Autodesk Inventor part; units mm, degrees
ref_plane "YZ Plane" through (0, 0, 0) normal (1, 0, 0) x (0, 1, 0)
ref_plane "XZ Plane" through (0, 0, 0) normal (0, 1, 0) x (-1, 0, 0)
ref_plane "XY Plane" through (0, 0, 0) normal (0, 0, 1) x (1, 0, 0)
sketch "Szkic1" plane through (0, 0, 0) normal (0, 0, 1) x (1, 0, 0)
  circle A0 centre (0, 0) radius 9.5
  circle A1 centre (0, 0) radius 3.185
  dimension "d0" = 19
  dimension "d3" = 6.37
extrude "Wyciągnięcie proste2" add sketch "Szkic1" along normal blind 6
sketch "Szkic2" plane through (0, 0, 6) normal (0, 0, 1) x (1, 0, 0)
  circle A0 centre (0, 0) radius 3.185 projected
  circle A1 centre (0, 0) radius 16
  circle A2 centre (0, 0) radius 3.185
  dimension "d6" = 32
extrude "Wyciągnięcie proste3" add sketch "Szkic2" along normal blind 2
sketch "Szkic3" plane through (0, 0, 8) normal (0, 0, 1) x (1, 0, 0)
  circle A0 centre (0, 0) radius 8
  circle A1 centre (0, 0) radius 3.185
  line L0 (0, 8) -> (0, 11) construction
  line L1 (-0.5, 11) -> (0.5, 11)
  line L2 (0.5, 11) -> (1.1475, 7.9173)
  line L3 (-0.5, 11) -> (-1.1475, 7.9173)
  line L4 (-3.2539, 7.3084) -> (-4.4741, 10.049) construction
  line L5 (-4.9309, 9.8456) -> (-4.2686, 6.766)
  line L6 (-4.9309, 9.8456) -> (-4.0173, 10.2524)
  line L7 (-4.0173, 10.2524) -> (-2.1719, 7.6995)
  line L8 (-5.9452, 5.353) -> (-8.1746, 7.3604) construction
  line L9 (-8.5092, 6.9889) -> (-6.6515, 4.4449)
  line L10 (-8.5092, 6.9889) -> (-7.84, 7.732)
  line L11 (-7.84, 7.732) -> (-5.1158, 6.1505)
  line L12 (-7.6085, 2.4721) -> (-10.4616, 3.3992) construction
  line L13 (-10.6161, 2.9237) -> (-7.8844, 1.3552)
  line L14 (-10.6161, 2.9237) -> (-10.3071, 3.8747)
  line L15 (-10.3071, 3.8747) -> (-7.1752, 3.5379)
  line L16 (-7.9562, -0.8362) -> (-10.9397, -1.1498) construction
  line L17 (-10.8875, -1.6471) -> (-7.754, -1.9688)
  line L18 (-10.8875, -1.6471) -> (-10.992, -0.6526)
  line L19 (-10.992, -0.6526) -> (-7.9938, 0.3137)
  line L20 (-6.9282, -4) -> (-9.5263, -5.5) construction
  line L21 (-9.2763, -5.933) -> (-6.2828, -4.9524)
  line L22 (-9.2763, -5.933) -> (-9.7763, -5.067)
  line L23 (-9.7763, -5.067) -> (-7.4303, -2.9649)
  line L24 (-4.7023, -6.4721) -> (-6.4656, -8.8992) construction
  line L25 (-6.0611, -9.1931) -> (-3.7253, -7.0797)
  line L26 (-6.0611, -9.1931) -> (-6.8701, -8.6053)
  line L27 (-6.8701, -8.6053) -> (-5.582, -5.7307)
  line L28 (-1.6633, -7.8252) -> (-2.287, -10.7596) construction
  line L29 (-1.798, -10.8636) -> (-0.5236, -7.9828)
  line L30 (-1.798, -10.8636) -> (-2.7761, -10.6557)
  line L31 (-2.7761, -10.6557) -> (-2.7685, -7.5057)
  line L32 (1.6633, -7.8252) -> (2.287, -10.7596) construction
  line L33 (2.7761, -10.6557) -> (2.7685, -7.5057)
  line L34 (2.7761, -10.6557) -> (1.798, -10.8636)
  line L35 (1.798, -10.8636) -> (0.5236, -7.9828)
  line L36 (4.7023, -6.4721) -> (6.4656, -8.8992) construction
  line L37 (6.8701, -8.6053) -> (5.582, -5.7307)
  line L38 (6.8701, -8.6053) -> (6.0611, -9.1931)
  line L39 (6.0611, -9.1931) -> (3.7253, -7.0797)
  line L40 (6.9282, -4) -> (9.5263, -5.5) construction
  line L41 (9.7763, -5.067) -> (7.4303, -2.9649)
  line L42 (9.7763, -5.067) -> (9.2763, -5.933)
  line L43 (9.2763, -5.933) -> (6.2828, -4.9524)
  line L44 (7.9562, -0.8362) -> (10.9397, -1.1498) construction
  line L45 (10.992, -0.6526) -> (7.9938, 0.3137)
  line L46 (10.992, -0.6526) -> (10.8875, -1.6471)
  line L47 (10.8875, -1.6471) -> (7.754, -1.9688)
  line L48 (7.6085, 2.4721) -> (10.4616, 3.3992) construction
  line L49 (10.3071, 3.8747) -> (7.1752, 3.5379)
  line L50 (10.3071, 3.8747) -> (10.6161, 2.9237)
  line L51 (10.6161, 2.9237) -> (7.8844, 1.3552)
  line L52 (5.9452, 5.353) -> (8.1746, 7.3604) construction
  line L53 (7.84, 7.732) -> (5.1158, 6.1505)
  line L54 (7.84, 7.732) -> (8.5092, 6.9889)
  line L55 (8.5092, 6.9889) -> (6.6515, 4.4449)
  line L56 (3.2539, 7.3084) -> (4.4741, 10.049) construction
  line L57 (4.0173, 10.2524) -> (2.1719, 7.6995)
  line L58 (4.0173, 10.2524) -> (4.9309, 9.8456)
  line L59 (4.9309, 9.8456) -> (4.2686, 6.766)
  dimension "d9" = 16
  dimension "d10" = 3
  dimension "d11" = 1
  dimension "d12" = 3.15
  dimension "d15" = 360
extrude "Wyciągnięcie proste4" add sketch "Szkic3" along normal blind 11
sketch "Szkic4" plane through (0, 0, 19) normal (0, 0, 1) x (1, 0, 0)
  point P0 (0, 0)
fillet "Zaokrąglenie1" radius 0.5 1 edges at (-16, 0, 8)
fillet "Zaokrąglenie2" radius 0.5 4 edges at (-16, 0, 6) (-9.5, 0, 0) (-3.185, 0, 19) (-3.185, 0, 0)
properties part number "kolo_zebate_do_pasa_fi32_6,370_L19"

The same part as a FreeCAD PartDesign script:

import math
import FreeCAD as App
import Part
import Sketcher
from FreeCAD import Vector
Q = App.Units.Quantity


def edges_at(feature, points):
    """Names of the edges that pass closest to the given points."""
    edges = feature.Shape.Edges
    near = lambda p: min(range(len(edges)), key=lambda i: edges[i].distToShape(Part.Vertex(*p))[0])
    return sorted({f"Edge{near(p) + 1}" for p in points})

doc = App.newDocument("Part")
body = doc.addObject("PartDesign::Body", "Body")

sketch1 = body.newObject("Sketcher::SketchObject", "Sketch")
sketch1.AttachmentSupport = (doc.getObject("XY_Plane"), [""])
sketch1.MapMode = "FlatFace"
sketch1.addGeometry([
    Part.Circle(Vector(0, 0, 0), Vector(0, 0, 1), 9.5),
    Part.Circle(Vector(0, 0, 0), Vector(0, 0, 1), 3.2),
], False)
sketch1.addConstraint([
    Sketcher.Constraint("Coincident", 0, 3, -1, 1),
    Sketcher.Constraint("Coincident", 1, 3, -1, 1),
    Sketcher.Constraint("Diameter", 0, Q("19 mm")),
    Sketcher.Constraint("Diameter", 1, Q("6.37 mm")),
])
pad1 = body.newObject("PartDesign::Pad", "Pad")
pad1.Profile = sketch1
pad1.Length = 6

sketch2 = body.newObject("Sketcher::SketchObject", "Sketch001")
sketch2.AttachmentSupport = (doc.getObject("XY_Plane"), [""])
sketch2.MapMode = "FlatFace"
sketch2.AttachmentOffset = App.Placement(Vector(0, 0, 6), App.Rotation())
sketch2.addGeometry([
    Part.Circle(Vector(0, 0, 0), Vector(0, 0, 1), 16),
    Part.Circle(Vector(0, 0, 0), Vector(0, 0, 1), 3.2),
], False)
sketch2.addConstraint([
    Sketcher.Constraint("Coincident", 0, 3, -1, 1),
    Sketcher.Constraint("Coincident", 1, 3, -1, 1),
    Sketcher.Constraint("Diameter", 0, Q("32 mm")),
    Sketcher.Constraint("Diameter", 1, Q("6.37 mm")),
])
pad2 = body.newObject("PartDesign::Pad", "Pad001")
pad2.Profile = sketch2
pad2.Length = 2

sketch3 = body.newObject("Sketcher::SketchObject", "Sketch002")
sketch3.AttachmentSupport = (doc.getObject("XY_Plane"), [""])
sketch3.MapMode = "FlatFace"
sketch3.AttachmentOffset = App.Placement(Vector(0, 0, 8), App.Rotation())
sketch3.addGeometry([
    Part.ArcOfCircle(Part.Circle(Vector(0, 0, 0), Vector(0, 0, 1), 8), math.radians(-21.75), math.radians(-14.25)),
    Part.LineSegment(Vector(7.8, -2, 0), Vector(10.9, -1.6, 0)),
    Part.LineSegment(Vector(10.9, -1.6, 0), Vector(11, -0.7, 0)),
    Part.LineSegment(Vector(11, -0.7, 0), Vector(8, 0.3, 0)),
    Part.ArcOfCircle(Part.Circle(Vector(0, 0, 0), Vector(0, 0, 1), 8), math.radians(2.25), math.radians(9.75)),
    Part.LineSegment(Vector(7.9, 1.4, 0), Vector(10.6, 2.9, 0)),
    Part.LineSegment(Vector(10.6, 2.9, 0), Vector(10.3, 3.9, 0)),
    Part.LineSegment(Vector(10.3, 3.9, 0), Vector(7.2, 3.5, 0)),
    Part.ArcOfCircle(Part.Circle(Vector(0, 0, 0), Vector(0, 0, 1), 8), math.radians(26.25), math.radians(33.75)),
    Part.LineSegment(Vector(6.7, 4.4, 0), Vector(8.5, 7, 0)),
    Part.LineSegment(Vector(8.5, 7, 0), Vector(7.8, 7.7, 0)),
    Part.LineSegment(Vector(7.8, 7.7, 0), Vector(5.1, 6.2, 0)),
    Part.ArcOfCircle(Part.Circle(Vector(0, 0, 0), Vector(0, 0, 1), 8), math.radians(50.25), math.radians(57.75)),
    Part.LineSegment(Vector(4.3, 6.8, 0), Vector(4.9, 9.8, 0)),
    Part.LineSegment(Vector(4.9, 9.8, 0), Vector(4, 10.3, 0)),
    Part.LineSegment(Vector(4, 10.3, 0), Vector(2.2, 7.7, 0)),
    Part.ArcOfCircle(Part.Circle(Vector(0, 0, 0), Vector(0, 0, 1), 8), math.radians(74.25), math.radians(81.75)),
    Part.LineSegment(Vector(1.1, 7.9, 0), Vector(0.5, 11, 0)),
    Part.LineSegment(Vector(0.5, 11, 0), Vector(-0.5, 11, 0)),
    Part.LineSegment(Vector(-0.5, 11, 0), Vector(-1.1, 7.9, 0)),
    Part.ArcOfCircle(Part.Circle(Vector(0, 0, 0), Vector(0, 0, 1), 8), math.radians(98.25), math.radians(105.75)),
    Part.LineSegment(Vector(-2.2, 7.7, 0), Vector(-4, 10.3, 0)),
    Part.LineSegment(Vector(-4, 10.3, 0), Vector(-4.9, 9.8, 0)),
    Part.LineSegment(Vector(-4.9, 9.8, 0), Vector(-4.3, 6.8, 0)),
    Part.ArcOfCircle(Part.Circle(Vector(0, 0, 0), Vector(0, 0, 1), 8), math.radians(122.25), math.radians(129.75)),
    Part.LineSegment(Vector(-5.1, 6.2, 0), Vector(-7.8, 7.7, 0)),
    Part.LineSegment(Vector(-7.8, 7.7, 0), Vector(-8.5, 7, 0)),
    Part.LineSegment(Vector(-8.5, 7, 0), Vector(-6.7, 4.4, 0)),
    Part.ArcOfCircle(Part.Circle(Vector(0, 0, 0), Vector(0, 0, 1), 8), math.radians(146.25), math.radians(153.75)),
    Part.LineSegment(Vector(-7.2, 3.5, 0), Vector(-10.3, 3.9, 0)),
    Part.LineSegment(Vector(-10.3, 3.9, 0), Vector(-10.6, 2.9, 0)),
    Part.LineSegment(Vector(-10.6, 2.9, 0), Vector(-7.9, 1.4, 0)),
    Part.ArcOfCircle(Part.Circle(Vector(0, 0, 0), Vector(0, 0, 1), 8), math.radians(170.25), math.radians(177.75)),
    Part.LineSegment(Vector(-8, 0.3, 0), Vector(-11, -0.7, 0)),
    Part.LineSegment(Vector(-11, -0.7, 0), Vector(-10.9, -1.6, 0)),
    Part.LineSegment(Vector(-10.9, -1.6, 0), Vector(-7.8, -2, 0)),
    Part.ArcOfCircle(Part.Circle(Vector(0, 0, 0), Vector(0, 0, 1), 8), math.radians(-165.75), math.radians(-158.25)),
    Part.LineSegment(Vector(-7.4, -3, 0), Vector(-9.8, -5.1, 0)),
    Part.LineSegment(Vector(-9.8, -5.1, 0), Vector(-9.3, -5.9, 0)),
    Part.LineSegment(Vector(-9.3, -5.9, 0), Vector(-6.3, -5, 0)),
    Part.ArcOfCircle(Part.Circle(Vector(0, 0, 0), Vector(0, 0, 1), 8), math.radians(-141.75), math.radians(-134.25)),
    Part.LineSegment(Vector(-5.6, -5.7, 0), Vector(-6.9, -8.6, 0)),
    Part.LineSegment(Vector(-6.9, -8.6, 0), Vector(-6.1, -9.2, 0)),
    Part.LineSegment(Vector(-6.1, -9.2, 0), Vector(-3.7, -7.1, 0)),
    Part.ArcOfCircle(Part.Circle(Vector(0, 0, 0), Vector(0, 0, 1), 8), math.radians(-117.75), math.radians(-110.25)),
    Part.LineSegment(Vector(-2.8, -7.5, 0), Vector(-2.8, -10.7, 0)),
    Part.LineSegment(Vector(-2.8, -10.7, 0), Vector(-1.8, -10.9, 0)),
    Part.LineSegment(Vector(-1.8, -10.9, 0), Vector(-0.5, -8, 0)),
    Part.ArcOfCircle(Part.Circle(Vector(0, 0, 0), Vector(0, 0, 1), 8), math.radians(-93.75), math.radians(-86.25)),
    Part.LineSegment(Vector(0.5, -8, 0), Vector(1.8, -10.9, 0)),
    Part.LineSegment(Vector(1.8, -10.9, 0), Vector(2.8, -10.7, 0)),
    Part.LineSegment(Vector(2.8, -10.7, 0), Vector(2.8, -7.5, 0)),
    Part.ArcOfCircle(Part.Circle(Vector(0, 0, 0), Vector(0, 0, 1), 8), math.radians(-69.75), math.radians(-62.25)),
    Part.LineSegment(Vector(3.7, -7.1, 0), Vector(6.1, -9.2, 0)),
    Part.LineSegment(Vector(6.1, -9.2, 0), Vector(6.9, -8.6, 0)),
    Part.LineSegment(Vector(6.9, -8.6, 0), Vector(5.6, -5.7, 0)),
    Part.ArcOfCircle(Part.Circle(Vector(0, 0, 0), Vector(0, 0, 1), 8), math.radians(-45.75), math.radians(-38.25)),
    Part.LineSegment(Vector(6.3, -5, 0), Vector(9.3, -5.9, 0)),
    Part.LineSegment(Vector(9.3, -5.9, 0), Vector(9.8, -5.1, 0)),
    Part.LineSegment(Vector(9.8, -5.1, 0), Vector(7.4, -3, 0)),
    Part.Circle(Vector(0, 0, 0), Vector(0, 0, 1), 3.2),
], False)
sketch3.addConstraint([
    Sketcher.Constraint("Coincident", 0, 2, 1, 1),
    Sketcher.Constraint("Coincident", 1, 2, 2, 1),
    Sketcher.Constraint("Coincident", 2, 2, 3, 1),
    Sketcher.Constraint("Coincident", 3, 2, 4, 1),
    Sketcher.Constraint("Coincident", 4, 2, 5, 1),
    Sketcher.Constraint("Coincident", 5, 2, 6, 1),
    Sketcher.Constraint("Coincident", 6, 2, 7, 1),
    Sketcher.Constraint("Coincident", 7, 2, 8, 1),
    Sketcher.Constraint("Coincident", 8, 2, 9, 1),
    Sketcher.Constraint("Coincident", 9, 2, 10, 1),
    Sketcher.Constraint("Coincident", 10, 2, 11, 1),
    Sketcher.Constraint("Coincident", 11, 2, 12, 1),
    Sketcher.Constraint("Coincident", 12, 2, 13, 1),
    Sketcher.Constraint("Coincident", 13, 2, 14, 1),
    Sketcher.Constraint("Coincident", 14, 2, 15, 1),
    Sketcher.Constraint("Coincident", 15, 2, 16, 1),
    Sketcher.Constraint("Coincident", 16, 2, 17, 1),
    Sketcher.Constraint("Coincident", 17, 2, 18, 1),
    Sketcher.Constraint("Coincident", 18, 2, 19, 1),
    Sketcher.Constraint("Coincident", 19, 2, 20, 1),
    Sketcher.Constraint("Coincident", 20, 2, 21, 1),
    Sketcher.Constraint("Coincident", 21, 2, 22, 1),
    Sketcher.Constraint("Coincident", 22, 2, 23, 1),
    Sketcher.Constraint("Coincident", 23, 2, 24, 1),
    Sketcher.Constraint("Coincident", 24, 2, 25, 1),
    Sketcher.Constraint("Coincident", 25, 2, 26, 1),
    Sketcher.Constraint("Coincident", 26, 2, 27, 1),
    Sketcher.Constraint("Coincident", 27, 2, 28, 1),
    Sketcher.Constraint("Coincident", 28, 2, 29, 1),
    Sketcher.Constraint("Coincident", 29, 2, 30, 1),
    Sketcher.Constraint("Coincident", 30, 2, 31, 1),
    Sketcher.Constraint("Coincident", 31, 2, 32, 1),
    Sketcher.Constraint("Coincident", 32, 2, 33, 1),
    Sketcher.Constraint("Coincident", 33, 2, 34, 1),
    Sketcher.Constraint("Coincident", 34, 2, 35, 1),
    Sketcher.Constraint("Coincident", 35, 2, 36, 1),
    Sketcher.Constraint("Coincident", 36, 2, 37, 1),
    Sketcher.Constraint("Coincident", 37, 2, 38, 1),
    Sketcher.Constraint("Coincident", 38, 2, 39, 1),
    Sketcher.Constraint("Coincident", 39, 2, 40, 1),
    Sketcher.Constraint("Coincident", 40, 2, 41, 1),
    Sketcher.Constraint("Coincident", 41, 2, 42, 1),
    Sketcher.Constraint("Coincident", 42, 2, 43, 1),
    Sketcher.Constraint("Coincident", 43, 2, 44, 1),
    Sketcher.Constraint("Coincident", 44, 2, 45, 1),
    Sketcher.Constraint("Coincident", 45, 2, 46, 1),
    Sketcher.Constraint("Coincident", 46, 2, 47, 1),
    Sketcher.Constraint("Coincident", 47, 2, 48, 1),
    Sketcher.Constraint("Coincident", 48, 2, 49, 1),
    Sketcher.Constraint("Coincident", 49, 2, 50, 1),
    Sketcher.Constraint("Coincident", 50, 2, 51, 1),
    Sketcher.Constraint("Coincident", 51, 2, 52, 1),
    Sketcher.Constraint("Coincident", 52, 2, 53, 1),
    Sketcher.Constraint("Coincident", 53, 2, 54, 1),
    Sketcher.Constraint("Coincident", 54, 2, 55, 1),
    Sketcher.Constraint("Coincident", 55, 2, 56, 1),
    Sketcher.Constraint("Coincident", 56, 2, 57, 1),
    Sketcher.Constraint("Coincident", 57, 2, 58, 1),
    Sketcher.Constraint("Coincident", 58, 2, 59, 1),
    Sketcher.Constraint("Coincident", 59, 2, 0, 1),
    Sketcher.Constraint("Horizontal", 18),
    Sketcher.Constraint("Coincident", 0, 3, -1, 1),
    Sketcher.Constraint("Coincident", 4, 3, -1, 1),
    Sketcher.Constraint("Coincident", 8, 3, -1, 1),
    Sketcher.Constraint("Coincident", 12, 3, -1, 1),
    Sketcher.Constraint("Coincident", 16, 3, -1, 1),
    Sketcher.Constraint("Coincident", 20, 3, -1, 1),
    Sketcher.Constraint("Coincident", 24, 3, -1, 1),
    Sketcher.Constraint("Coincident", 28, 3, -1, 1),
    Sketcher.Constraint("Coincident", 32, 3, -1, 1),
    Sketcher.Constraint("Coincident", 36, 3, -1, 1),
    Sketcher.Constraint("Coincident", 40, 3, -1, 1),
    Sketcher.Constraint("Coincident", 44, 3, -1, 1),
    Sketcher.Constraint("Coincident", 48, 3, -1, 1),
    Sketcher.Constraint("Coincident", 52, 3, -1, 1),
    Sketcher.Constraint("Coincident", 56, 3, -1, 1),
    Sketcher.Constraint("Coincident", 60, 3, -1, 1),
    Sketcher.Constraint("Equal", 0, 4),
    Sketcher.Constraint("Equal", 4, 8),
    Sketcher.Constraint("Equal", 8, 12),
    Sketcher.Constraint("Equal", 12, 16),
    Sketcher.Constraint("Equal", 16, 20),
    Sketcher.Constraint("Equal", 20, 24),
    Sketcher.Constraint("Equal", 24, 28),
    Sketcher.Constraint("Equal", 28, 32),
    Sketcher.Constraint("Equal", 32, 36),
    Sketcher.Constraint("Equal", 36, 40),
    Sketcher.Constraint("Equal", 40, 44),
    Sketcher.Constraint("Equal", 44, 48),
    Sketcher.Constraint("Equal", 48, 52),
    Sketcher.Constraint("Equal", 52, 56),
    Sketcher.Constraint("Symmetric", 14, 2, 21, 2, -2),
    Sketcher.Constraint("Symmetric", 13, 2, 22, 2, -2),
    Sketcher.Constraint("Symmetric", 10, 2, 25, 2, -2),
    Sketcher.Constraint("Symmetric", 9, 2, 26, 2, -2),
    Sketcher.Constraint("Symmetric", 6, 2, 29, 2, -2),
    Sketcher.Constraint("Symmetric", 5, 2, 30, 2, -2),
    Sketcher.Constraint("Symmetric", 2, 2, 33, 2, -2),
    Sketcher.Constraint("Symmetric", 1, 2, 34, 2, -2),
    Sketcher.Constraint("Symmetric", 46, 2, 49, 2, -2),
    Sketcher.Constraint("Symmetric", 45, 2, 50, 2, -2),
    Sketcher.Constraint("Symmetric", 42, 2, 53, 2, -2),
    Sketcher.Constraint("Symmetric", 41, 2, 54, 2, -2),
    Sketcher.Constraint("Symmetric", 38, 2, 57, 2, -2),
    Sketcher.Constraint("Symmetric", 37, 2, 58, 2, -2),
    Sketcher.Constraint("Horizontal", 16, 2, 19, 2),
    Sketcher.Constraint("Horizontal", 15, 2, 20, 2),
    Sketcher.Constraint("Horizontal", 12, 2, 23, 2),
    Sketcher.Constraint("Horizontal", 11, 2, 24, 2),
    Sketcher.Constraint("Horizontal", 8, 2, 27, 2),
    Sketcher.Constraint("Horizontal", 7, 2, 28, 2),
    Sketcher.Constraint("Horizontal", 4, 2, 31, 2),
    Sketcher.Constraint("Horizontal", 3, 2, 32, 2),
    Sketcher.Constraint("Horizontal", 0, 2, 35, 2),
    Sketcher.Constraint("Horizontal", 47, 2, 48, 2),
    Sketcher.Constraint("Horizontal", 44, 2, 51, 2),
    Sketcher.Constraint("Horizontal", 43, 2, 52, 2),
    Sketcher.Constraint("Horizontal", 40, 2, 55, 2),
    Sketcher.Constraint("Horizontal", 39, 2, 56, 2),
    Sketcher.Constraint("Horizontal", 36, 2, 59, 2),
    Sketcher.Constraint("Equal", 1, 3),
    Sketcher.Constraint("Equal", 3, 5),
    Sketcher.Constraint("Equal", 2, 6),
    Sketcher.Constraint("Equal", 5, 7),
    Sketcher.Constraint("Equal", 7, 9),
    Sketcher.Constraint("Equal", 6, 10),
    Sketcher.Constraint("Equal", 9, 11),
    Sketcher.Constraint("Equal", 11, 13),
    Sketcher.Constraint("Equal", 10, 14),
    Sketcher.Constraint("Equal", 13, 15),
    Sketcher.Constraint("Equal", 15, 17),
    Sketcher.Constraint("Equal", 17, 19),
    Sketcher.Constraint("Equal", 35, 37),
    Sketcher.Constraint("Equal", 34, 38),
    Sketcher.Constraint("Equal", 37, 39),
    Sketcher.Constraint("Equal", 39, 41),
    Sketcher.Constraint("Equal", 38, 42),
    Sketcher.Constraint("Equal", 41, 43),
    Sketcher.Constraint("Equal", 43, 45),
    Sketcher.Constraint("Equal", 42, 46),
    Sketcher.Constraint("Equal", 45, 47),
    Sketcher.Constraint("Radius", 0, Q("8 mm")),
    Sketcher.Constraint("DistanceX", 18, 2, 18, 1, Q("1 mm")),
    Sketcher.Constraint("Distance", 2, Q("1 mm")),
    Sketcher.Constraint("Distance", 1, Q("3.15 mm")),
    Sketcher.Constraint("Diameter", 60, Q("6.37 mm")),
    Sketcher.Constraint("Angle", 6, Q("108 deg")),
    Sketcher.Constraint("Angle", 38, Q("-59.9993 deg")),
    Sketcher.Constraint("Angle", 46, Q("-12 deg")),
    Sketcher.Constraint("DistanceY", -1, 1, 17, 2, Q("11 mm")),
    Sketcher.Constraint("DistanceX", -1, 1, 10, 2, Q("7.84 mm")),
    Sketcher.Constraint("DistanceX", 41, 2, -1, 1, Q("6.87 mm")),
    Sketcher.Constraint("DistanceX", -1, 1, 0, 2, Q("7.754 mm")),
    Sketcher.Constraint("DistanceY", 1, 2, -1, 1, Q("1.647 mm")),
    Sketcher.Constraint("DistanceX", -1, 1, 2, 2, Q("10.992 mm")),
    Sketcher.Constraint("DistanceX", -1, 1, 5, 2, Q("10.616 mm")),
    Sketcher.Constraint("DistanceY", -1, 1, 7, 2, Q("3.538 mm")),
    Sketcher.Constraint("DistanceY", -1, 1, 8, 2, Q("4.445 mm")),
    Sketcher.Constraint("DistanceY", -1, 1, 9, 2, Q("6.989 mm")),
    Sketcher.Constraint("DistanceY", -1, 1, 12, 2, Q("6.766 mm")),
    Sketcher.Constraint("DistanceX", -1, 1, 13, 2, Q("4.931 mm")),
    Sketcher.Constraint("DistanceX", -1, 1, 15, 2, Q("2.172 mm")),
    Sketcher.Constraint("DistanceY", 36, 2, -1, 1, Q("2.965 mm")),
    Sketcher.Constraint("DistanceY", 37, 2, -1, 1, Q("5.067 mm")),
    Sketcher.Constraint("DistanceX", 40, 2, -1, 1, Q("5.582 mm")),
    Sketcher.Constraint("DistanceX", 42, 2, -1, 1, Q("6.061 mm")),
    Sketcher.Constraint("DistanceX", 45, 2, -1, 1, Q("2.776 mm")),
    Sketcher.Constraint("DistanceX", 44, 2, -1, 1, Q("2.7685 mm")),
])
pad3 = body.newObject("PartDesign::Pad", "Pad002")
pad3.Profile = sketch3
pad3.Length = 11
doc.recompute()

fillet = body.newObject("PartDesign::Fillet", "Fillet")
fillet.Base = (pad3, edges_at(pad3, [(-16, 0, 8)]))
fillet.Radius = 0.5
doc.recompute()

fillet2 = body.newObject("PartDesign::Fillet", "Fillet001")
fillet2.Base = (fillet, edges_at(fillet, [
    (-16, 0, 6),
    (-9.5, 0, 0),
    (-3.185, 0, 19),
    (-3.185, 0, 0),
]))
fillet2.Radius = 0.5

doc.recompute()
